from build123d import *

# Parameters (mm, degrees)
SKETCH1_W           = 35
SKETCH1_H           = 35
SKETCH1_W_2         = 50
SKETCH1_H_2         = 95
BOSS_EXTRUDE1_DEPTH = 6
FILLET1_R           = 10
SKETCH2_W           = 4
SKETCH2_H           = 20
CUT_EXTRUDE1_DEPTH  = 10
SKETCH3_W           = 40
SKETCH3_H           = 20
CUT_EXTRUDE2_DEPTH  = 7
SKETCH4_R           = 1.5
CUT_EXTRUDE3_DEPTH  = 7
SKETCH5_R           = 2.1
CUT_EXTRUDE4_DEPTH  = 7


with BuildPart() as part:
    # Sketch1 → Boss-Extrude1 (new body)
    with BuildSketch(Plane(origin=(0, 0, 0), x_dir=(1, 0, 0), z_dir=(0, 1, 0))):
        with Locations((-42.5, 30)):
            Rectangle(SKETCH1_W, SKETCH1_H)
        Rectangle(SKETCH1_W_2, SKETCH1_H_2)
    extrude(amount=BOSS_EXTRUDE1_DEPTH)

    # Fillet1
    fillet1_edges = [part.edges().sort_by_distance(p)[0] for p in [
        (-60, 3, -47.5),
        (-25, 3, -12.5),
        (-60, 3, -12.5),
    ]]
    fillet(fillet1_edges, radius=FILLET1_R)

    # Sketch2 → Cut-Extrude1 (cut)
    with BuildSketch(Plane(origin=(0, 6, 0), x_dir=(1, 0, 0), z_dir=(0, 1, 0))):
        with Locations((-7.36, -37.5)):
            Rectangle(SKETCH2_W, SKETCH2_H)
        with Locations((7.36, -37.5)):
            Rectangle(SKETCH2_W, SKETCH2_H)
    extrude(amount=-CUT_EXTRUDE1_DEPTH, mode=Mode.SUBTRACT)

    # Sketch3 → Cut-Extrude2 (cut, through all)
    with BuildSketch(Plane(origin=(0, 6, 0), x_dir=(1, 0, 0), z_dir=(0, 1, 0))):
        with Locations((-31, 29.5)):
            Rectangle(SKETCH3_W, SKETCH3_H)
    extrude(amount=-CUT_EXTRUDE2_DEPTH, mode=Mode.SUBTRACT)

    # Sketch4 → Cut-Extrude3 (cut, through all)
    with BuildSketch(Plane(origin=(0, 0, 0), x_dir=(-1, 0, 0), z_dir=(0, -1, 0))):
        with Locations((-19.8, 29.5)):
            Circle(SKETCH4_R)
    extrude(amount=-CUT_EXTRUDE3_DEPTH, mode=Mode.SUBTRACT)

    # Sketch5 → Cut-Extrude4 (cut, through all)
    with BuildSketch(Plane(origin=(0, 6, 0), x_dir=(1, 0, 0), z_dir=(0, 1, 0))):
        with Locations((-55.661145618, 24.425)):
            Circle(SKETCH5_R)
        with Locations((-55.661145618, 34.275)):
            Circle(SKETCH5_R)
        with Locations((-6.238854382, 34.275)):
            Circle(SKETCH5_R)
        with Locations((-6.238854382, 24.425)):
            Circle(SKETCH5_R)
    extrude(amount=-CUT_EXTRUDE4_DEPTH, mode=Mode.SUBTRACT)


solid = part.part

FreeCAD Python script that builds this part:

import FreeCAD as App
import Part
import Sketcher
from FreeCAD import Vector


def edges_at(feature, points):
    """Names of the edges that pass closest to the given points."""
    edges = feature.Shape.Edges
    near = lambda p: min(range(len(edges)), key=lambda i: edges[i].distToShape(Part.Vertex(*p))[0])
    return sorted({f"Edge{near(p) + 1}" for p in points})

doc = App.newDocument("Part")
params = doc.addObject("Spreadsheet::Sheet", "Params")
for row, (alias, value) in enumerate([
    ("sketch1_width", "35 mm"),
    ("sketch1_width2", "50 mm"),
    ("sketch1_height", "60 mm"),
    ("pad1_length", "6 mm"),
    ("fillet_radius", "10 mm"),
    ("sketch2_width", "4 mm"),
    ("sketch2_height", "20 mm"),
    ("pocket1_length", "10 mm"),
    ("sketch3_width", "40 mm"),
    ("sketch3_height", "20 mm"),
    ("sketch4_diameter", "3 mm"),
    ("sketch5_diameter", "4.2 mm"),
], start=1):
    params.set(f"A{row}", alias)
    params.set(f"B{row}", "=" + value)
    params.setAlias(f"B{row}", alias)

body = doc.addObject("PartDesign::Body", "Body")

# Sketch on XZ plane
sketch1 = body.newObject("Sketcher::SketchObject", "Sketch")
sketch1.AttachmentSupport = (doc.getObject("XZ_Plane"), [""])
sketch1.MapMode = "FlatFace"
sketch1.addGeometry(Part.LineSegment(Vector(-60, -48, 0), Vector(-60, -12, 0)), False)
sketch1.addGeometry(Part.LineSegment(Vector(-60, -12, 0), Vector(-25, -12, 0)), False)
sketch1.addGeometry(Part.LineSegment(Vector(-25, -12, 0), Vector(-25, 48, 0)), False)
sketch1.addGeometry(Part.LineSegment(Vector(-25, 48, 0), Vector(25, 48, 0)), False)
sketch1.addGeometry(Part.LineSegment(Vector(25, 48, 0), Vector(25, -48, 0)), False)
sketch1.addGeometry(Part.LineSegment(Vector(25, -48, 0), Vector(-60, -48, 0)), False)
sketch1.addConstraint(Sketcher.Constraint("Coincident", 0, 2, 1, 1))
sketch1.addConstraint(Sketcher.Constraint("Coincident", 1, 2, 2, 1))
sketch1.addConstraint(Sketcher.Constraint("Coincident", 2, 2, 3, 1))
sketch1.addConstraint(Sketcher.Constraint("Coincident", 3, 2, 4, 1))
sketch1.addConstraint(Sketcher.Constraint("Coincident", 4, 2, 5, 1))
sketch1.addConstraint(Sketcher.Constraint("Coincident", 5, 2, 0, 1))
sketch1.addConstraint(Sketcher.Constraint("Vertical", 0))
sketch1.addConstraint(Sketcher.Constraint("Horizontal", 1))
sketch1.addConstraint(Sketcher.Constraint("Vertical", 2))
sketch1.addConstraint(Sketcher.Constraint("Horizontal", 3))
sketch1.addConstraint(Sketcher.Constraint("Vertical", 4))
sketch1.addConstraint(Sketcher.Constraint("Horizontal", 5))
sketch1.addConstraint(Sketcher.Constraint("Symmetric", 2, 2, 4, 2, -1, 1))
sketch1.addConstraint(Sketcher.Constraint("Equal", 1, 0))
sketch1.addConstraint(Sketcher.Constraint("DistanceX", 1, 1, 1, 2, 35.0))
sketch1.addConstraint(Sketcher.Constraint("DistanceX", 3, 1, 3, 2, 50.0))
sketch1.addConstraint(Sketcher.Constraint("DistanceY", 2, 1, 2, 2, 60.0))
sketch1.setExpression("Constraints[14]", "Params.sketch1_width")
sketch1.setExpression("Constraints[15]", "Params.sketch1_width2")
sketch1.setExpression("Constraints[16]", "Params.sketch1_height")
pad1 = body.newObject("PartDesign::Pad", "Pad")
pad1.Profile = sketch1
pad1.setExpression("Length", "Params.pad1_length")
pad1.Reversed = True
doc.recompute()

fillet = body.newObject("PartDesign::Fillet", "Fillet")
fillet.Base = (pad1, edges_at(pad1, [(-60, 3, -47.5), (-25, 3, -12.5), (-60, 3, -12.5)]))
fillet.setExpression("Radius", "Params.fillet_radius")

# Sketch on XZ plane
sketch2 = body.newObject("Sketcher::SketchObject", "Sketch001")
sketch2.AttachmentSupport = (doc.getObject("XZ_Plane"), [""])
sketch2.MapMode = "FlatFace"
sketch2.AttachmentOffset = App.Placement(Vector(0, 0, -6), App.Rotation())
sketch2.addGeometry(Part.LineSegment(Vector(-9.4, 27.5, 0), Vector(-9.4, 47.5, 0)), False)
sketch2.addGeometry(Part.LineSegment(Vector(-9.4, 47.5, 0), Vector(-5.4, 47.5, 0)), False)
sketch2.addGeometry(Part.LineSegment(Vector(-5.4, 47.5, 0), Vector(-5.4, 27.5, 0)), False)
sketch2.addGeometry(Part.LineSegment(Vector(-5.4, 27.5, 0), Vector(-9.4, 27.5, 0)), False)
sketch2.addGeometry(Part.LineSegment(Vector(5.4, 27.5, 0), Vector(5.4, 47.5, 0)), False)
sketch2.addGeometry(Part.LineSegment(Vector(5.4, 47.5, 0), Vector(9.4, 47.5, 0)), False)
sketch2.addGeometry(Part.LineSegment(Vector(9.4, 47.5, 0), Vector(9.4, 27.5, 0)), False)
sketch2.addGeometry(Part.LineSegment(Vector(9.4, 27.5, 0), Vector(5.4, 27.5, 0)), False)
sketch2.addConstraint(Sketcher.Constraint("Coincident", 0, 2, 1, 1))
sketch2.addConstraint(Sketcher.Constraint("Coincident", 1, 2, 2, 1))
sketch2.addConstraint(Sketcher.Constraint("Coincident", 2, 2, 3, 1))
sketch2.addConstraint(Sketcher.Constraint("Coincident", 3, 2, 0, 1))
sketch2.addConstraint(Sketcher.Constraint("Coincident", 4, 2, 5, 1))
sketch2.addConstraint(Sketcher.Constraint("Coincident", 5, 2, 6, 1))
sketch2.addConstraint(Sketcher.Constraint("Coincident", 6, 2, 7, 1))
sketch2.addConstraint(Sketcher.Constraint("Coincident", 7, 2, 4, 1))
sketch2.addConstraint(Sketcher.Constraint("Vertical", 0))
sketch2.addConstraint(Sketcher.Constraint("Horizontal", 1))
sketch2.addConstraint(Sketcher.Constraint("Vertical", 2))
sketch2.addConstraint(Sketcher.Constraint("Horizontal", 3))
sketch2.addConstraint(Sketcher.Constraint("Vertical", 4))
sketch2.addConstraint(Sketcher.Constraint("Horizontal", 5))
sketch2.addConstraint(Sketcher.Constraint("Vertical", 6))
sketch2.addConstraint(Sketcher.Constraint("Horizontal", 7))
sketch2.addConstraint(Sketcher.Constraint("Symmetric", 1, 2, 4, 2, -2))
sketch2.addConstraint(Sketcher.Constraint("Symmetric", 3, 2, 6, 2, -2))
sketch2.addConstraint(Sketcher.Constraint("DistanceX", 1, 1, 1, 2, 4.0))
sketch2.addConstraint(Sketcher.Constraint("DistanceY", 0, 1, 0, 2, 20.0))
sketch2.addConstraint(Sketcher.Constraint("DistanceY", -1, 1, 0, 2, 47.5))
sketch2.addConstraint(Sketcher.Constraint("DistanceX", 0, 2, -1, 1, 9.36))
sketch2.setExpression("Constraints[18]", "Params.sketch2_width")
sketch2.setExpression("Constraints[19]", "Params.sketch2_height")
pocket1 = body.newObject("PartDesign::Pocket", "Pocket")
pocket1.Profile = sketch2
pocket1.setExpression("Length", "Params.pocket1_length")
pocket1.Reversed = True

# Sketch on XZ plane
sketch3 = body.newObject("Sketcher::SketchObject", "Sketch002")
sketch3.AttachmentSupport = (doc.getObject("XZ_Plane"), [""])
sketch3.MapMode = "FlatFace"
sketch3.AttachmentOffset = App.Placement(Vector(0, 0, -6), App.Rotation())
sketch3.addGeometry(Part.LineSegment(Vector(-51, -40, 0), Vector(-51, -20, 0)), False)
sketch3.addGeometry(Part.LineSegment(Vector(-51, -20, 0), Vector(-11, -20, 0)), False)
sketch3.addGeometry(Part.LineSegment(Vector(-11, -20, 0), Vector(-11, -40, 0)), False)
sketch3.addGeometry(Part.LineSegment(Vector(-11, -40, 0), Vector(-51, -40, 0)), False)
sketch3.addConstraint(Sketcher.Constraint("Coincident", 0, 2, 1, 1))
sketch3.addConstraint(Sketcher.Constraint("Coincident", 1, 2, 2, 1))
sketch3.addConstraint(Sketcher.Constraint("Coincident", 2, 2, 3, 1))
sketch3.addConstraint(Sketcher.Constraint("Coincident", 3, 2, 0, 1))
sketch3.addConstraint(Sketcher.Constraint("Vertical", 0))
sketch3.addConstraint(Sketcher.Constraint("Horizontal", 1))
sketch3.addConstraint(Sketcher.Constraint("Vertical", 2))
sketch3.addConstraint(Sketcher.Constraint("Horizontal", 3))
sketch3.addConstraint(Sketcher.Constraint("DistanceX", 1, 1, 1, 2, 40.0))
sketch3.addConstraint(Sketcher.Constraint("DistanceY", 0, 1, 0, 2, 20.0))
sketch3.addConstraint(Sketcher.Constraint("DistanceX", 0, 2, -1, 1, 51.0))
sketch3.addConstraint(Sketcher.Constraint("DistanceY", 0, 2, -1, 1, 19.5))
sketch3.setExpression("Constraints[8]", "Params.sketch3_width")
sketch3.setExpression("Constraints[9]", "Params.sketch3_height")
pocket2 = body.newObject("PartDesign::Pocket", "Pocket001")
pocket2.Profile = sketch3
pocket2.Type = "ThroughAll"
pocket2.Reversed = True

# Sketch on XZ plane
sketch4 = body.newObject("Sketcher::SketchObject", "Sketch003")
sketch4.AttachmentSupport = (doc.getObject("XZ_Plane"), [""])
sketch4.MapMode = "FlatFace"
sketch4.addGeometry(Part.Circle(Vector(19.8, -29.5, 0), Vector(0, 0, 1), 1.5), False)
sketch4.addConstraint(Sketcher.Constraint("Diameter", 0, 3.0))
sketch4.addConstraint(Sketcher.Constraint("DistanceX", -1, 1, 0, 3, 19.8))
sketch4.addConstraint(Sketcher.Constraint("DistanceY", 0, 3, -1, 1, 29.5))
sketch4.setExpression("Constraints[0]", "Params.sketch4_diameter")
pocket3 = body.newObject("PartDesign::Pocket", "Pocket002")
pocket3.Profile = sketch4
pocket3.Type = "ThroughAll"

# Sketch on XZ plane
sketch5 = body.newObject("Sketcher::SketchObject", "Sketch004")
sketch5.AttachmentSupport = (doc.getObject("XZ_Plane"), [""])
sketch5.MapMode = "FlatFace"
sketch5.AttachmentOffset = App.Placement(Vector(0, 0, -6), App.Rotation())
sketch5.addGeometry(Part.Circle(Vector(-55.7, -24.4, 0), Vector(0, 0, 1), 2.1), False)
sketch5.addGeometry(Part.Circle(Vector(-55.7, -34.3, 0), Vector(0, 0, 1), 2.1), False)
sketch5.addGeometry(Part.Circle(Vector(-6.2, -34.3, 0), Vector(0, 0, 1), 2.1), False)
sketch5.addGeometry(Part.Circle(Vector(-6.2, -24.4, 0), Vector(0, 0, 1), 2.1), False)
sketch5.addConstraint(Sketcher.Constraint("Equal", 0, 1))
sketch5.addConstraint(Sketcher.Constraint("Equal", 1, 2))
sketch5.addConstraint(Sketcher.Constraint("Equal", 2, 3))
sketch5.addConstraint(Sketcher.Constraint("Horizontal", 1, 3, 2, 3))
sketch5.addConstraint(Sketcher.Constraint("Horizontal", 0, 3, 3, 3))
sketch5.addConstraint(Sketcher.Constraint("Vertical", 0, 3, 1, 3))
sketch5.addConstraint(Sketcher.Constraint("Vertical", 2, 3, 3, 3))
sketch5.addConstraint(Sketcher.Constraint("Diameter", 0, 4.2))
sketch5.addConstraint(Sketcher.Constraint("DistanceY", 1, 3, 0, 3, 9.85))
sketch5.addConstraint(Sketcher.Constraint("DistanceY", 0, 3, -1, 1, 24.425))
sketch5.addConstraint(Sketcher.Constraint("DistanceX", 1, 3, 2, 3, 49.422291))
sketch5.addConstraint(Sketcher.Constraint("DistanceX", 0, 3, -1, 1, 55.661146))
sketch5.setExpression("Constraints[7]", "Params.sketch5_diameter")
pocket4 = body.newObject("PartDesign::Pocket", "Pocket003")
pocket4.Profile = sketch5
pocket4.Type = "ThroughAll"
pocket4.Reversed = True

doc.recompute()
